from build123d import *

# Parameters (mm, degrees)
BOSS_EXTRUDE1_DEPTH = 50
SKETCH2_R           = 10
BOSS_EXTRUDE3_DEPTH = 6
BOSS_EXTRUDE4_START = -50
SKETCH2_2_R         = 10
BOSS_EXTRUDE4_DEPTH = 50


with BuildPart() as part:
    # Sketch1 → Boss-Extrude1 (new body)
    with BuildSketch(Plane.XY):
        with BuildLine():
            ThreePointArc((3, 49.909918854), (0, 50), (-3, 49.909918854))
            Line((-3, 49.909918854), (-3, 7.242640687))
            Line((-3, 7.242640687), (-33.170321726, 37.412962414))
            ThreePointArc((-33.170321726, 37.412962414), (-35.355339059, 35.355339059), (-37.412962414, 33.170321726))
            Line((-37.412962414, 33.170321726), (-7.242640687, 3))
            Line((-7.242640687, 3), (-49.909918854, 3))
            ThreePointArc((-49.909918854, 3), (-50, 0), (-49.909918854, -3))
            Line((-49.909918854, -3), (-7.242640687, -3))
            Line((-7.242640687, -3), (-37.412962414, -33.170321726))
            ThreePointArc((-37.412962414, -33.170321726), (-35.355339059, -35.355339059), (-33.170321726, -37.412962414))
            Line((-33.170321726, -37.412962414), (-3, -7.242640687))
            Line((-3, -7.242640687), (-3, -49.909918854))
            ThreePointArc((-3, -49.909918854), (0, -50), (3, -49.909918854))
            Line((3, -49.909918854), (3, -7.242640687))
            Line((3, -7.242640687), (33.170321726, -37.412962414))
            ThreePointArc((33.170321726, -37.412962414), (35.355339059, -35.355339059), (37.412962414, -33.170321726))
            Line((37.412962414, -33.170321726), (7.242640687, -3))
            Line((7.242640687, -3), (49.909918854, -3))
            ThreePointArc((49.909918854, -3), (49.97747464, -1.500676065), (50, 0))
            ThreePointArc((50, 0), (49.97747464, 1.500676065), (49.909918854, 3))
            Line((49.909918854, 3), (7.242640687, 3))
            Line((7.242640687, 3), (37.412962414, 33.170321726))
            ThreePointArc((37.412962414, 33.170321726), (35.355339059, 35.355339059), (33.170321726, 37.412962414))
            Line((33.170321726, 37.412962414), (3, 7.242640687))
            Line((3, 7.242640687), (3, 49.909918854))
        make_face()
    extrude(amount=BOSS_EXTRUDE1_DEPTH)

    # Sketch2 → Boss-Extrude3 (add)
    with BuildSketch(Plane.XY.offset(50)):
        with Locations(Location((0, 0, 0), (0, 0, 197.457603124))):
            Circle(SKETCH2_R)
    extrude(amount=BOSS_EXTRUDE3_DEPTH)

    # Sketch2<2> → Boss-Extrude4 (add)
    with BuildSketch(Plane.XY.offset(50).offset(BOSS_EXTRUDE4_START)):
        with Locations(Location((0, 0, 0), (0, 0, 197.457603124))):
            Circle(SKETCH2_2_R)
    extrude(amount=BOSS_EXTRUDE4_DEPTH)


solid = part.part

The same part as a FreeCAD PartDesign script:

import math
import FreeCAD as App
import Part
import Sketcher
from FreeCAD import Vector
Q = App.Units.Quantity

doc = App.newDocument("Part")
params = doc.addObject("Spreadsheet::Sheet", "Params")
for row, (alias, value) in enumerate([
    ("sketch1_radius", "50 mm"),
    ("pad1_length", "50 mm"),
    ("sketch2_diameter", "20 mm"),
    ("pad2_length", "6 mm"),
    ("sketch3_diameter", "20 mm"),
    ("pad3_length", "50 mm"),
], start=1):
    params.set(f"A{row}", alias)
    params.set(f"B{row}", "=" + value)
    params.setAlias(f"B{row}", alias)

body = doc.addObject("PartDesign::Body", "Body")

# Sketch on XY plane
sketch1 = body.newObject("Sketcher::SketchObject", "Sketch")
sketch1.AttachmentSupport = (doc.getObject("XY_Plane"), [""])
sketch1.MapMode = "FlatFace"
sketch1.addGeometry([
    Part.ArcOfCircle(Part.Circle(Vector(0, 0, 0), Vector(0, 0, 1), 50), math.radians(86.56), math.radians(93.44)),  # 0
    Part.LineSegment(Vector(-3, 49.9, 0), Vector(-3, 7.2, 0)),  # 1
    Part.LineSegment(Vector(-3, 7.2, 0), Vector(-33.2, 37.4, 0)),  # 2
    Part.ArcOfCircle(Part.Circle(Vector(0, 0, 0), Vector(0, 0, 1), 50), math.radians(131.56), math.radians(138.44)),  # 3
    Part.LineSegment(Vector(-37.4, 33.2, 0), Vector(-7.2, 3, 0)),  # 4
    Part.LineSegment(Vector(-7.2, 3, 0), Vector(-49.9, 3, 0)),  # 5
    Part.ArcOfCircle(Part.Circle(Vector(0, 0, 0), Vector(0, 0, 1), 50), math.radians(176.56), math.radians(183.44)),  # 6
    Part.LineSegment(Vector(-49.9, -3, 0), Vector(-7.2, -3, 0)),  # 7
    Part.LineSegment(Vector(-7.2, -3, 0), Vector(-37.4, -33.2, 0)),  # 8
    Part.ArcOfCircle(Part.Circle(Vector(0, 0, 0), Vector(0, 0, 1), 50), math.radians(-138.44), math.radians(-131.56)),  # 9
    Part.LineSegment(Vector(-33.2, -37.4, 0), Vector(-3, -7.2, 0)),  # 10
    Part.LineSegment(Vector(-3, -7.2, 0), Vector(-3, -49.9, 0)),  # 11
    Part.ArcOfCircle(Part.Circle(Vector(0, 0, 0), Vector(0, 0, 1), 50), math.radians(-93.44), math.radians(-86.56)),  # 12
    Part.LineSegment(Vector(3, -49.9, 0), Vector(3, -7.2, 0)),  # 13
    Part.LineSegment(Vector(3, -7.2, 0), Vector(33.2, -37.4, 0)),  # 14
    Part.ArcOfCircle(Part.Circle(Vector(0, 0, 0), Vector(0, 0, 1), 50), math.radians(-48.44), math.radians(-41.56)),  # 15
    Part.LineSegment(Vector(37.4, -33.2, 0), Vector(7.2, -3, 0)),  # 16
    Part.LineSegment(Vector(7.2, -3, 0), Vector(49.9, -3, 0)),  # 17
    Part.ArcOfCircle(Part.Circle(Vector(0, 0, 0), Vector(0, 0, 1), 50), math.radians(-3.44), math.radians(0)),  # 18
    Part.ArcOfCircle(Part.Circle(Vector(0, 0, 0), Vector(0, 0, 1), 50), math.radians(0), math.radians(3.44)),  # 19
    Part.LineSegment(Vector(49.9, 3, 0), Vector(7.2, 3, 0)),  # 20
    Part.LineSegment(Vector(7.2, 3, 0), Vector(37.4, 33.2, 0)),  # 21
    Part.ArcOfCircle(Part.Circle(Vector(0, 0, 0), Vector(0, 0, 1), 50), math.radians(41.56), math.radians(48.44)),  # 22
    Part.LineSegment(Vector(33.2, 37.4, 0), Vector(3, 7.2, 0)),  # 23
    Part.LineSegment(Vector(3, 7.2, 0), Vector(3, 49.9, 0)),  # 24
], False)
sketch1.addConstraint([
    Sketcher.Constraint("Coincident", 0, 2, 1, 1),
    Sketcher.Constraint("Coincident", 1, 2, 2, 1),
    Sketcher.Constraint("Coincident", 2, 2, 3, 1),
    Sketcher.Constraint("Coincident", 3, 2, 4, 1),
    Sketcher.Constraint("Coincident", 4, 2, 5, 1),
    Sketcher.Constraint("Coincident", 5, 2, 6, 1),
    Sketcher.Constraint("Coincident", 6, 2, 7, 1),
    Sketcher.Constraint("Coincident", 7, 2, 8, 1),
    Sketcher.Constraint("Coincident", 8, 2, 9, 1),
    Sketcher.Constraint("Coincident", 9, 2, 10, 1),
    Sketcher.Constraint("Coincident", 10, 2, 11, 1),
    Sketcher.Constraint("Coincident", 11, 2, 12, 1),
    Sketcher.Constraint("Coincident", 12, 2, 13, 1),
    Sketcher.Constraint("Coincident", 13, 2, 14, 1),
    Sketcher.Constraint("Coincident", 14, 2, 15, 1),
    Sketcher.Constraint("Coincident", 15, 2, 16, 1),
    Sketcher.Constraint("Coincident", 16, 2, 17, 1),
    Sketcher.Constraint("Coincident", 17, 2, 18, 1),
    Sketcher.Constraint("Tangent", 18, 2, 19, 1),
    Sketcher.Constraint("Coincident", 19, 2, 20, 1),
    Sketcher.Constraint("Coincident", 20, 2, 21, 1),
    Sketcher.Constraint("Coincident", 21, 2, 22, 1),
    Sketcher.Constraint("Coincident", 22, 2, 23, 1),
    Sketcher.Constraint("Coincident", 23, 2, 24, 1),
    Sketcher.Constraint("Coincident", 24, 2, 0, 1),
    Sketcher.Constraint("Vertical", 1),
    Sketcher.Constraint("Horizontal", 5),
    Sketcher.Constraint("Horizontal", 7),
    Sketcher.Constraint("Vertical", 11),
    Sketcher.Constraint("Vertical", 13),
    Sketcher.Constraint("Horizontal", 17),
    Sketcher.Constraint("Horizontal", 20),
    Sketcher.Constraint("Vertical", 24),
    Sketcher.Constraint("Coincident", 0, 3, -1, 1),
    Sketcher.Constraint("Coincident", 3, 3, -1, 1),
    Sketcher.Constraint("Coincident", 6, 3, -1, 1),
    Sketcher.Constraint("Coincident", 9, 3, -1, 1),
    Sketcher.Constraint("Coincident", 12, 3, -1, 1),
    Sketcher.Constraint("Coincident", 15, 3, -1, 1),
    Sketcher.Constraint("Coincident", 18, 3, -1, 1),
    Sketcher.Constraint("Coincident", 22, 3, -1, 1),
    Sketcher.Constraint("Equal", 0, 3),
    Sketcher.Constraint("Equal", 3, 6),
    Sketcher.Constraint("Equal", 6, 9),
    Sketcher.Constraint("Equal", 9, 12),
    Sketcher.Constraint("Equal", 12, 15),
    Sketcher.Constraint("Equal", 15, 18),
    Sketcher.Constraint("Equal", 18, 19),
    Sketcher.Constraint("Equal", 19, 22),
    Sketcher.Constraint("Symmetric", 1, 2, 13, 2, -1, 1),
    Sketcher.Constraint("Symmetric", 4, 2, 16, 2, -1, 1),
    Sketcher.Constraint("Symmetric", 7, 2, 20, 2, -1, 1),
    Sketcher.Constraint("Symmetric", 10, 2, 23, 2, -1, 1),
    Sketcher.Constraint("Symmetric", 10, 2, 13, 2, -2),
    Sketcher.Constraint("Symmetric", 7, 2, 16, 2, -2),
    Sketcher.Constraint("PointOnObject", 18, 2, -1),
    Sketcher.Constraint("Parallel", 2, 4),
    Sketcher.Constraint("Perpendicular", 4, 8),
    Sketcher.Constraint("Parallel", 8, 10),
    Sketcher.Constraint("Perpendicular", 10, 14),
    Sketcher.Constraint("Parallel", 14, 16),
    Sketcher.Constraint("Perpendicular", 16, 21),
    Sketcher.Constraint("Parallel", 21, 23),
    Sketcher.Constraint("Horizontal", 9, 2, 14, 2),
    Sketcher.Constraint("Equal", 20, 1),
    Sketcher.Constraint("Equal", 2, 4),
    Sketcher.Constraint("Radius", 0, Q("50 mm")),
    Sketcher.Constraint("DistanceX", 0, 2, -1, 1, Q("3 mm")),
    Sketcher.Constraint("DistanceX", 5, 2, 5, 1, Q("42.667278 mm")),
])
sketch1.setExpression("Constraints[66]", "Params.sketch1_radius")
pad1 = body.newObject("PartDesign::Pad", "Pad")
pad1.Profile = sketch1
pad1.setExpression("Length", "Params.pad1_length")

# Sketch on XY plane
sketch2 = body.newObject("Sketcher::SketchObject", "Sketch001")
sketch2.AttachmentSupport = (doc.getObject("XY_Plane"), [""])
sketch2.MapMode = "FlatFace"
sketch2.AttachmentOffset = App.Placement(Vector(0, 0, 50), App.Rotation())
sketch2.addGeometry(Part.Circle(Vector(0, 0, 0), Vector(0, 0, 1), 10), False)
sketch2.addConstraint([
    Sketcher.Constraint("Coincident", 0, 3, -1, 1),
    Sketcher.Constraint("Diameter", 0, Q("20 mm")),
])
sketch2.setExpression("Constraints[1]", "Params.sketch2_diameter")
pad2 = body.newObject("PartDesign::Pad", "Pad001")
pad2.Profile = sketch2
pad2.setExpression("Length", "Params.pad2_length")

# Sketch on XY plane
sketch3 = body.newObject("Sketcher::SketchObject", "Sketch002")
sketch3.AttachmentSupport = (doc.getObject("XY_Plane"), [""])
sketch3.MapMode = "FlatFace"
sketch3.addGeometry(Part.Circle(Vector(0, 0, 0), Vector(0, 0, 1), 10), False)
sketch3.addConstraint([
    Sketcher.Constraint("Coincident", 0, 3, -1, 1),
    Sketcher.Constraint("Diameter", 0, Q("20 mm")),
])
sketch3.setExpression("Constraints[1]", "Params.sketch3_diameter")
pad3 = body.newObject("PartDesign::Pad", "Pad002")
pad3.Profile = sketch3
pad3.setExpression("Length", "Params.pad3_length")

doc.recompute()
